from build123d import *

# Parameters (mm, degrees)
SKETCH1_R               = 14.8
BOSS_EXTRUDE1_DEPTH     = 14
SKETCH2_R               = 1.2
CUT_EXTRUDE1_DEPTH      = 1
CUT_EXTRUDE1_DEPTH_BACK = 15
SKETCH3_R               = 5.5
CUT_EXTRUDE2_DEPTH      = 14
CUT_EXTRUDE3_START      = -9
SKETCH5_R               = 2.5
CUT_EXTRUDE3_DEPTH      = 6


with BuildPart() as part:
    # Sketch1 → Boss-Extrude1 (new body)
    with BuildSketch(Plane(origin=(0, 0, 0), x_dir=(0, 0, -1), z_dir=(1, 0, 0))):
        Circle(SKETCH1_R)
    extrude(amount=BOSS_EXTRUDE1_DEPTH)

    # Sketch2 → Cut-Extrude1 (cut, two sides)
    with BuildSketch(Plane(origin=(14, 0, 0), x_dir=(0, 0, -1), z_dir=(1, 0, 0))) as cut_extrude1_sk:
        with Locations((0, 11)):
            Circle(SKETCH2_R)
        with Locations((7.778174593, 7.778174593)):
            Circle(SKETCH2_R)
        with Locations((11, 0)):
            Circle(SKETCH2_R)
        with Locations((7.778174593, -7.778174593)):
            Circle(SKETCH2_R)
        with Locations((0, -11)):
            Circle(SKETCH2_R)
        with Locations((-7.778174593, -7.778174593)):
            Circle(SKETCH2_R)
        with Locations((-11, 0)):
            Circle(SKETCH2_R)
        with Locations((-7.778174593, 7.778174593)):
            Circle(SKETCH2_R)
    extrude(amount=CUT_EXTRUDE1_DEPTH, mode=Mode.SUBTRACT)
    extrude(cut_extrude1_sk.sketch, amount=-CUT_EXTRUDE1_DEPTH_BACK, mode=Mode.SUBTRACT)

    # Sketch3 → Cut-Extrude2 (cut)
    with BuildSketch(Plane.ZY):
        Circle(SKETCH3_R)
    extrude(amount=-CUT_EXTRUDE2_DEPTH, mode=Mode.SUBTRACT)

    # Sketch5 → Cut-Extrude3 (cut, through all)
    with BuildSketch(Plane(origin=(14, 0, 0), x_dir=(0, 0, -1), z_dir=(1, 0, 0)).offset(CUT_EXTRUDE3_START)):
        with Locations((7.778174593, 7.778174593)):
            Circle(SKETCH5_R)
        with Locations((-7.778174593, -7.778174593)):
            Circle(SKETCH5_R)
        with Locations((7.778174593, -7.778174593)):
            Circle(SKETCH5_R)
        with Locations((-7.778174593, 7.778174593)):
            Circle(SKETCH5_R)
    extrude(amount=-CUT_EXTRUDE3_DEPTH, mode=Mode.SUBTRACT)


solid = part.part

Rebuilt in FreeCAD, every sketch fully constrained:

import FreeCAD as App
import Part
import Sketcher
from FreeCAD import Vector
Q = App.Units.Quantity

doc = App.newDocument("Part")
params = doc.addObject("Spreadsheet::Sheet", "Params")
for row, (alias, value) in enumerate([
    ("sketch1_diameter", "29.6 mm"),
    ("pad1_length", "14 mm"),
    ("sketch2_diameter", "2.4 mm"),
    ("sketch3_diameter", "11 mm"),
    ("pocket2_length", "14 mm"),
    ("sketch4_diameter", "5 mm"),
], start=1):
    params.set(f"A{row}", alias)
    params.set(f"B{row}", "=" + value)
    params.setAlias(f"B{row}", alias)

body = doc.addObject("PartDesign::Body", "Body")

sketch1 = doc.addObject("Sketcher::SketchObject", "Sketch")
body.addObject(sketch1)
sketch1.AttachmentSupport = (doc.YZ_Plane, [""])
sketch1.MapMode = "FlatFace"
sketch1.addGeometry(Part.Circle(Vector(0, 0, 0), Vector(0, 0, 1), 15), False)
sketch1.addConstraint(Sketcher.Constraint("Coincident", 0, 3, -1, 1))
sketch1.addConstraint(Sketcher.Constraint("Diameter", 0, Q("29.6 mm")))
sketch1.setExpression("Constraints[1]", "Params.sketch1_diameter")
pad1 = doc.addObject("PartDesign::Pad", "Pad")
body.addObject(pad1)
pad1.Profile = sketch1
pad1.setExpression("Length", "Params.pad1_length")

sketch2 = doc.addObject("Sketcher::SketchObject", "Sketch001")
body.addObject(sketch2)
sketch2.AttachmentSupport = (doc.YZ_Plane, [""])
sketch2.MapMode = "FlatFace"
sketch2.AttachmentOffset = App.Placement(Vector(0, 0, 14), App.Rotation())
sketch2.addGeometry(Part.Circle(Vector(11, 0, 0), Vector(0, 0, 1), 1.2), False)
sketch2.addGeometry(Part.Circle(Vector(7.8, -7.8, 0), Vector(0, 0, 1), 1.2), False)
sketch2.addGeometry(Part.Circle(Vector(0, -11, 0), Vector(0, 0, 1), 1.2), False)
sketch2.addGeometry(Part.Circle(Vector(-7.8, -7.8, 0), Vector(0, 0, 1), 1.2), False)
sketch2.addGeometry(Part.Circle(Vector(-11, 0, 0), Vector(0, 0, 1), 1.2), False)
sketch2.addGeometry(Part.Circle(Vector(-7.8, 7.8, 0), Vector(0, 0, 1), 1.2), False)
sketch2.addGeometry(Part.Circle(Vector(0, 11, 0), Vector(0, 0, 1), 1.2), False)
sketch2.addGeometry(Part.Circle(Vector(7.8, 7.8, 0), Vector(0, 0, 1), 1.2), False)
sketch2.addConstraint(Sketcher.Constraint("Equal", 0, 1))
sketch2.addConstraint(Sketcher.Constraint("Equal", 1, 2))
sketch2.addConstraint(Sketcher.Constraint("Equal", 2, 3))
sketch2.addConstraint(Sketcher.Constraint("Equal", 3, 4))
sketch2.addConstraint(Sketcher.Constraint("Equal", 4, 5))
sketch2.addConstraint(Sketcher.Constraint("Equal", 5, 6))
sketch2.addConstraint(Sketcher.Constraint("Equal", 6, 7))
sketch2.addConstraint(Sketcher.Constraint("Symmetric", 0, 3, 4, 3, -1, 1))
sketch2.addConstraint(Sketcher.Constraint("Symmetric", 1, 3, 5, 3, -1, 1))
sketch2.addConstraint(Sketcher.Constraint("Symmetric", 2, 3, 6, 3, -1, 1))
sketch2.addConstraint(Sketcher.Constraint("Symmetric", 3, 3, 7, 3, -1, 1))
sketch2.addConstraint(Sketcher.Constraint("Symmetric", 1, 3, 3, 3, -2))
sketch2.addConstraint(Sketcher.Constraint("PointOnObject", 0, 3, -1))
sketch2.addConstraint(Sketcher.Constraint("PointOnObject", 2, 3, -2))
sketch2.addConstraint(Sketcher.Constraint("Diameter", 0, Q("2.4 mm")))
sketch2.addConstraint(Sketcher.Constraint("DistanceX", -1, 1, 0, 3, Q("11 mm")))
sketch2.addConstraint(Sketcher.Constraint("DistanceY", 2, 3, -1, 1, Q("11 mm")))
sketch2.addConstraint(Sketcher.Constraint("DistanceX", 3, 3, 1, 3, Q("15.556349 mm")))
sketch2.addConstraint(Sketcher.Constraint("DistanceY", 3, 3, 5, 3, Q("15.556349 mm")))
sketch2.setExpression("Constraints[14]", "Params.sketch2_diameter")
pocket1 = doc.addObject("PartDesign::Pocket", "Pocket")
body.addObject(pocket1)
pocket1.Profile = sketch2
pocket1.Type = "ThroughAll"
pocket1.Midplane = True

sketch3 = doc.addObject("Sketcher::SketchObject", "Sketch002")
body.addObject(sketch3)
sketch3.AttachmentSupport = (doc.YZ_Plane, [""])
sketch3.MapMode = "FlatFace"
sketch3.addGeometry(Part.Circle(Vector(0, 0, 0), Vector(0, 0, 1), 6), False)
sketch3.addConstraint(Sketcher.Constraint("Coincident", 0, 3, -1, 1))
sketch3.addConstraint(Sketcher.Constraint("Diameter", 0, Q("11 mm")))
sketch3.setExpression("Constraints[1]", "Params.sketch3_diameter")
pocket2 = doc.addObject("PartDesign::Pocket", "Pocket001")
body.addObject(pocket2)
pocket2.Profile = sketch3
pocket2.setExpression("Length", "Params.pocket2_length")
pocket2.Reversed = True

sketch4 = doc.addObject("Sketcher::SketchObject", "Sketch003")
body.addObject(sketch4)
sketch4.AttachmentSupport = (doc.YZ_Plane, [""])
sketch4.MapMode = "FlatFace"
sketch4.AttachmentOffset = App.Placement(Vector(0, 0, 5), App.Rotation())
sketch4.addGeometry(Part.Circle(Vector(7.8, -7.8, 0), Vector(0, 0, 1), 2.5), False)
sketch4.addGeometry(Part.Circle(Vector(-7.8, 7.8, 0), Vector(0, 0, 1), 2.5), False)
sketch4.addGeometry(Part.Circle(Vector(-7.8, -7.8, 0), Vector(0, 0, 1), 2.5), False)
sketch4.addGeometry(Part.Circle(Vector(7.8, 7.8, 0), Vector(0, 0, 1), 2.5), False)
sketch4.addConstraint(Sketcher.Constraint("Equal", 0, 1))
sketch4.addConstraint(Sketcher.Constraint("Equal", 1, 2))
sketch4.addConstraint(Sketcher.Constraint("Equal", 2, 3))
sketch4.addConstraint(Sketcher.Constraint("Symmetric", 0, 3, 1, 3, -1, 1))
sketch4.addConstraint(Sketcher.Constraint("Symmetric", 2, 3, 3, 3, -1, 1))
sketch4.addConstraint(Sketcher.Constraint("Symmetric", 0, 3, 2, 3, -2))
sketch4.addConstraint(Sketcher.Constraint("Diameter", 0, Q("5 mm")))
sketch4.addConstraint(Sketcher.Constraint("DistanceX", 1, 3, 0, 3, Q("15.556349 mm")))
sketch4.addConstraint(Sketcher.Constraint("DistanceY", 0, 3, 1, 3, Q("15.556349 mm")))
sketch4.setExpression("Constraints[6]", "Params.sketch4_diameter")
pocket3 = doc.addObject("PartDesign::Pocket", "Pocket002")
body.addObject(pocket3)
pocket3.Profile = sketch4
pocket3.Type = "ThroughAll"

doc.recompute()
